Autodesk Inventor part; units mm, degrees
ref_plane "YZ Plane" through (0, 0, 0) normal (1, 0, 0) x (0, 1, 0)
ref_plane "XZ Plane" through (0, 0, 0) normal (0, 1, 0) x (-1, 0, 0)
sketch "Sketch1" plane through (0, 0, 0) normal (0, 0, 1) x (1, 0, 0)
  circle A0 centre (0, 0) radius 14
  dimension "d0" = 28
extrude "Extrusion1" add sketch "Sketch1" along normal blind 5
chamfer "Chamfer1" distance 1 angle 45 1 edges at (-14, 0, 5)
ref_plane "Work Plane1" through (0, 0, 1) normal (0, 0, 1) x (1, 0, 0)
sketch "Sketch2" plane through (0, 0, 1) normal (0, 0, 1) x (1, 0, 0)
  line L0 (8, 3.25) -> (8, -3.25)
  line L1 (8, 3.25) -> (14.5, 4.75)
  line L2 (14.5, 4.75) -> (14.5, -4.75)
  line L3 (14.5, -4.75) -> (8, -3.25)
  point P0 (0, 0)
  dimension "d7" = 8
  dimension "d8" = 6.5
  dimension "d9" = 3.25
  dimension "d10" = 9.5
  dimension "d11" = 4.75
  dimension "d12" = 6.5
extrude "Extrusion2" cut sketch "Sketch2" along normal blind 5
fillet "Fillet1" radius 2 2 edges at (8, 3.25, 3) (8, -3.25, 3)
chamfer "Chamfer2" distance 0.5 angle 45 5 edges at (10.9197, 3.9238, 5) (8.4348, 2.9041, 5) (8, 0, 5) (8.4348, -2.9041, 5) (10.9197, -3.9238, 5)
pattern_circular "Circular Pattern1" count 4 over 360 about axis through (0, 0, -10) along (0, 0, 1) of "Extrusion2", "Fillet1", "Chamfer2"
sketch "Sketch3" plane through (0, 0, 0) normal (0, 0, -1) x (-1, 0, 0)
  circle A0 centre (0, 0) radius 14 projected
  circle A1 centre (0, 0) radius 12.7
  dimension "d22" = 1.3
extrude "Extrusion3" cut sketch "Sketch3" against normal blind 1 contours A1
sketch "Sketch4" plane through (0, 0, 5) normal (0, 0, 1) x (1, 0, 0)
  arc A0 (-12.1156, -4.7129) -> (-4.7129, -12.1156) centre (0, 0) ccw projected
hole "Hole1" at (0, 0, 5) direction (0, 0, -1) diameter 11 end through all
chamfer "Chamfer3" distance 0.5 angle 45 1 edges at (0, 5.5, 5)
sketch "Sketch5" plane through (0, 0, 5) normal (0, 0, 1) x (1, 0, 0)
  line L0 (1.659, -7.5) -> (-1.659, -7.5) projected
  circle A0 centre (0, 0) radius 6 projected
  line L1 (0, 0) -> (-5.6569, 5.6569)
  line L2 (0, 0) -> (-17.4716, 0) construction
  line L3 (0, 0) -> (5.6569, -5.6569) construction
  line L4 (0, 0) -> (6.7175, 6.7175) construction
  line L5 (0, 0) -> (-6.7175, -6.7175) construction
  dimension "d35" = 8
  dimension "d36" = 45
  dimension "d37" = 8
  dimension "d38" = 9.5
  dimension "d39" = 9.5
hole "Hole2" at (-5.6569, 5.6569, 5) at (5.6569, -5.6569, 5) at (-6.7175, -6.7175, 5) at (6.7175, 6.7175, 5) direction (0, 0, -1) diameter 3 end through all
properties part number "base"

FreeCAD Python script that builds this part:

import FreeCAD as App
import Part
import Sketcher

V = App.Vector


def edges_at(feature, points):
    """Names of the edges that pass closest to the given points."""
    edges = feature.Shape.Edges
    near = lambda p: min(range(len(edges)), key=lambda i: edges[i].distToShape(Part.Vertex(*p))[0])
    return sorted({f"Edge{near(p) + 1}" for p in points})


def add_polygon(sketch, points):
    """Adds a closed chain of lines whose ends are joined by coincident constraints."""
    first, n = sketch.GeometryCount, len(points)
    for a, b in zip(points, points[1:] + points[:1]):
        sketch.addGeometry(Part.LineSegment(App.Vector(*a, 0), App.Vector(*b, 0)), False)
    for i in range(n):
        sketch.addConstraint(Sketcher.Constraint("Coincident", first + i, 2, first + (i + 1) % n, 1))

doc = App.newDocument("Part")
params = doc.addObject("Spreadsheet::Sheet", "Params")
for row, (alias, value) in enumerate([
    ("sketch1_diameter", "28 mm"),
    ("pad1_length", "5 mm"),
    ("chamfer_size", "1 mm"),
    ("sketch2_height", "6.5 mm"),
    ("sketch2_height2", "9.5 mm"),
    ("pocket1_length", "5 mm"),
    ("fillet_radius", "2 mm"),
    ("chamfer2_size", "0.5 mm"),
    ("sketch3_diameter", "25.4 mm"),
    ("pocket2_length", "1 mm"),
    ("sketch4_diameter", "11 mm"),
    ("hole_diameter", "11 mm"),
    ("chamfer3_size", "0.5 mm"),
    ("sketch5_diameter", "3 mm"),
    ("hole2_diameter", "3 mm"),
], start=1):
    params.set(f"A{row}", alias)
    params.set(f"B{row}", "=" + value)
    params.setAlias(f"B{row}", alias)

body = doc.addObject("PartDesign::Body", "Body")

sketch1 = doc.addObject("Sketcher::SketchObject", "Sketch")
body.addObject(sketch1)
sketch1.AttachmentSupport = (doc.XY_Plane, [""])
sketch1.MapMode = "FlatFace"
sketch1.addGeometry(Part.Circle(V(0, 0, 0), V(0, 0, 1), 14), False)
sketch1.addConstraint([
    Sketcher.Constraint("Coincident", 0, 3, -1, 1),
    Sketcher.Constraint("Diameter", 0, 28.0),
])
sketch1.setExpression("Constraints[1]", "Params.sketch1_diameter")
pad1 = doc.addObject("PartDesign::Pad", "Pad")
body.addObject(pad1)
pad1.Profile = sketch1
pad1.setExpression("Length", "Params.pad1_length")
doc.recompute()

chamfer = doc.addObject("PartDesign::Chamfer", "Chamfer")
body.addObject(chamfer)
chamfer.Base = (pad1, edges_at(pad1, [(-14, 0, 5)]))
chamfer.setExpression("Size", "Params.chamfer_size")

sketch2 = doc.addObject("Sketcher::SketchObject", "Sketch001")
body.addObject(sketch2)
sketch2.AttachmentSupport = (doc.XY_Plane, [""])
sketch2.MapMode = "FlatFace"
sketch2.AttachmentOffset = App.Placement(V(0, 0, 1), App.Rotation())
add_polygon(sketch2, [(14, 5), (8, 3), (8, -3), (14, -5)])
sketch2.addConstraint([
    Sketcher.Constraint("Vertical", 1),
    Sketcher.Constraint("Vertical", 3),
    Sketcher.Constraint("Equal", 0, 2),
    Sketcher.Constraint("DistanceY", 1, 2, 1, 1, 6.5),
    Sketcher.Constraint("DistanceY", 3, 1, 3, 2, 9.5),
    Sketcher.Constraint("DistanceX", -1, 1, 0, 2, 8.0),
    Sketcher.Constraint("DistanceX", 1, 2, 2, 2, 6.5),
    Sketcher.Constraint("DistanceY", -1, 1, 0, 2, 3.25),
])
sketch2.setExpression("Constraints[7]", "Params.sketch2_height")
sketch2.setExpression("Constraints[8]", "Params.sketch2_height2")
pocket1 = doc.addObject("PartDesign::Pocket", "Pocket")
body.addObject(pocket1)
pocket1.Profile = sketch2
pocket1.setExpression("Length", "Params.pocket1_length")
pocket1.Reversed = True
doc.recompute()

fillet = doc.addObject("PartDesign::Fillet", "Fillet")
body.addObject(fillet)
fillet.Base = (pocket1, edges_at(pocket1, [(8, 3.25, 3), (8, -3.25, 3)]))
fillet.setExpression("Radius", "Params.fillet_radius")
doc.recompute()

chamfer2 = doc.addObject("PartDesign::Chamfer", "Chamfer001")
body.addObject(chamfer2)
chamfer2.Base = (fillet, edges_at(fillet, [
    (10.92, 3.924, 5),
    (8.435, 2.904, 5),
    (8, 0, 5),
    (8.435, -2.904, 5),
    (10.92, -3.924, 5),
]))
chamfer2.setExpression("Size", "Params.chamfer2_size")
doc.recompute()

polarpattern = doc.addObject("PartDesign::PolarPattern", "PolarPattern")
body.addObject(polarpattern)
polarpattern.Originals = [pocket1, fillet, chamfer2]
polarpattern.Axis = (doc.Z_Axis, [""])
polarpattern.Angle = 360
polarpattern.Occurrences = 4
body.Tip = polarpattern

sketch3 = doc.addObject("Sketcher::SketchObject", "Sketch002")
body.addObject(sketch3)
sketch3.AttachmentSupport = (doc.XY_Plane, [""])
sketch3.MapMode = "FlatFace"
sketch3.addGeometry(Part.Circle(V(0, 0, 0), V(0, 0, 1), 13), False)
sketch3.addConstraint([
    Sketcher.Constraint("Coincident", 0, 3, -1, 1),
    Sketcher.Constraint("Diameter", 0, 25.4),
])
sketch3.setExpression("Constraints[1]", "Params.sketch3_diameter")
pocket2 = doc.addObject("PartDesign::Pocket", "Pocket001")
body.addObject(pocket2)
pocket2.Profile = sketch3
pocket2.setExpression("Length", "Params.pocket2_length")
pocket2.Reversed = True

sketch4 = doc.addObject("Sketcher::SketchObject", "Sketch003")
body.addObject(sketch4)
sketch4.AttachmentSupport = (doc.XY_Plane, [""])
sketch4.MapMode = "FlatFace"
sketch4.AttachmentOffset = App.Placement(V(0, 0, 5), App.Rotation())
sketch4.addGeometry(Part.Circle(V(0, 0, 0), V(0, 0, 1), 6), False)
sketch4.addConstraint([
    Sketcher.Constraint("Coincident", 0, 3, -1, 1),
    Sketcher.Constraint("Diameter", 0, 11.0),
])
sketch4.setExpression("Constraints[1]", "Params.sketch4_diameter")
doc.recompute()
hole = doc.addObject("PartDesign::Hole", "Hole")
body.addObject(hole)
hole.Profile = sketch4
hole.ThreadType = "None"
hole.setExpression("Diameter", "Params.hole_diameter")
hole.DepthType = "ThroughAll"
doc.recompute()

chamfer3 = doc.addObject("PartDesign::Chamfer", "Chamfer002")
body.addObject(chamfer3)
chamfer3.Base = (hole, edges_at(hole, [(0, 5.5, 5)]))
chamfer3.setExpression("Size", "Params.chamfer3_size")

sketch5 = doc.addObject("Sketcher::SketchObject", "Sketch004")
body.addObject(sketch5)
sketch5.AttachmentSupport = (doc.XY_Plane, [""])
sketch5.MapMode = "FlatFace"
sketch5.AttachmentOffset = App.Placement(V(0, 0, 5), App.Rotation())
sketch5.addGeometry([
    Part.Circle(V(-5.7, 5.7, 0), V(0, 0, 1), 1.5),
    Part.Circle(V(5.7, -5.7, 0), V(0, 0, 1), 1.5),
    Part.Circle(V(-6.7, -6.7, 0), V(0, 0, 1), 1.5),
    Part.Circle(V(6.7, 6.7, 0), V(0, 0, 1), 1.5),
], False)
sketch5.addConstraint([
    Sketcher.Constraint("Equal", 0, 1),
    Sketcher.Constraint("Equal", 1, 2),
    Sketcher.Constraint("Equal", 2, 3),
    Sketcher.Constraint("Symmetric", 0, 3, 1, 3, -1, 1),
    Sketcher.Constraint("Symmetric", 2, 3, 3, 3, -1, 1),
    Sketcher.Constraint("Diameter", 0, 3.0),
    Sketcher.Constraint("DistanceX", 0, 3, -1, 1, 5.657),
    Sketcher.Constraint("DistanceY", -1, 1, 0, 3, 5.657),
    Sketcher.Constraint("DistanceX", 2, 3, 3, 3, 13.435),
    Sketcher.Constraint("DistanceY", 2, 3, 3, 3, 13.435),
])
sketch5.setExpression("Constraints[5]", "Params.sketch5_diameter")
doc.recompute()
hole2 = doc.addObject("PartDesign::Hole", "Hole001")
body.addObject(hole2)
hole2.Profile = sketch5
hole2.ThreadType = "None"
hole2.setExpression("Diameter", "Params.hole2_diameter")
hole2.DepthType = "ThroughAll"

doc.recompute()
